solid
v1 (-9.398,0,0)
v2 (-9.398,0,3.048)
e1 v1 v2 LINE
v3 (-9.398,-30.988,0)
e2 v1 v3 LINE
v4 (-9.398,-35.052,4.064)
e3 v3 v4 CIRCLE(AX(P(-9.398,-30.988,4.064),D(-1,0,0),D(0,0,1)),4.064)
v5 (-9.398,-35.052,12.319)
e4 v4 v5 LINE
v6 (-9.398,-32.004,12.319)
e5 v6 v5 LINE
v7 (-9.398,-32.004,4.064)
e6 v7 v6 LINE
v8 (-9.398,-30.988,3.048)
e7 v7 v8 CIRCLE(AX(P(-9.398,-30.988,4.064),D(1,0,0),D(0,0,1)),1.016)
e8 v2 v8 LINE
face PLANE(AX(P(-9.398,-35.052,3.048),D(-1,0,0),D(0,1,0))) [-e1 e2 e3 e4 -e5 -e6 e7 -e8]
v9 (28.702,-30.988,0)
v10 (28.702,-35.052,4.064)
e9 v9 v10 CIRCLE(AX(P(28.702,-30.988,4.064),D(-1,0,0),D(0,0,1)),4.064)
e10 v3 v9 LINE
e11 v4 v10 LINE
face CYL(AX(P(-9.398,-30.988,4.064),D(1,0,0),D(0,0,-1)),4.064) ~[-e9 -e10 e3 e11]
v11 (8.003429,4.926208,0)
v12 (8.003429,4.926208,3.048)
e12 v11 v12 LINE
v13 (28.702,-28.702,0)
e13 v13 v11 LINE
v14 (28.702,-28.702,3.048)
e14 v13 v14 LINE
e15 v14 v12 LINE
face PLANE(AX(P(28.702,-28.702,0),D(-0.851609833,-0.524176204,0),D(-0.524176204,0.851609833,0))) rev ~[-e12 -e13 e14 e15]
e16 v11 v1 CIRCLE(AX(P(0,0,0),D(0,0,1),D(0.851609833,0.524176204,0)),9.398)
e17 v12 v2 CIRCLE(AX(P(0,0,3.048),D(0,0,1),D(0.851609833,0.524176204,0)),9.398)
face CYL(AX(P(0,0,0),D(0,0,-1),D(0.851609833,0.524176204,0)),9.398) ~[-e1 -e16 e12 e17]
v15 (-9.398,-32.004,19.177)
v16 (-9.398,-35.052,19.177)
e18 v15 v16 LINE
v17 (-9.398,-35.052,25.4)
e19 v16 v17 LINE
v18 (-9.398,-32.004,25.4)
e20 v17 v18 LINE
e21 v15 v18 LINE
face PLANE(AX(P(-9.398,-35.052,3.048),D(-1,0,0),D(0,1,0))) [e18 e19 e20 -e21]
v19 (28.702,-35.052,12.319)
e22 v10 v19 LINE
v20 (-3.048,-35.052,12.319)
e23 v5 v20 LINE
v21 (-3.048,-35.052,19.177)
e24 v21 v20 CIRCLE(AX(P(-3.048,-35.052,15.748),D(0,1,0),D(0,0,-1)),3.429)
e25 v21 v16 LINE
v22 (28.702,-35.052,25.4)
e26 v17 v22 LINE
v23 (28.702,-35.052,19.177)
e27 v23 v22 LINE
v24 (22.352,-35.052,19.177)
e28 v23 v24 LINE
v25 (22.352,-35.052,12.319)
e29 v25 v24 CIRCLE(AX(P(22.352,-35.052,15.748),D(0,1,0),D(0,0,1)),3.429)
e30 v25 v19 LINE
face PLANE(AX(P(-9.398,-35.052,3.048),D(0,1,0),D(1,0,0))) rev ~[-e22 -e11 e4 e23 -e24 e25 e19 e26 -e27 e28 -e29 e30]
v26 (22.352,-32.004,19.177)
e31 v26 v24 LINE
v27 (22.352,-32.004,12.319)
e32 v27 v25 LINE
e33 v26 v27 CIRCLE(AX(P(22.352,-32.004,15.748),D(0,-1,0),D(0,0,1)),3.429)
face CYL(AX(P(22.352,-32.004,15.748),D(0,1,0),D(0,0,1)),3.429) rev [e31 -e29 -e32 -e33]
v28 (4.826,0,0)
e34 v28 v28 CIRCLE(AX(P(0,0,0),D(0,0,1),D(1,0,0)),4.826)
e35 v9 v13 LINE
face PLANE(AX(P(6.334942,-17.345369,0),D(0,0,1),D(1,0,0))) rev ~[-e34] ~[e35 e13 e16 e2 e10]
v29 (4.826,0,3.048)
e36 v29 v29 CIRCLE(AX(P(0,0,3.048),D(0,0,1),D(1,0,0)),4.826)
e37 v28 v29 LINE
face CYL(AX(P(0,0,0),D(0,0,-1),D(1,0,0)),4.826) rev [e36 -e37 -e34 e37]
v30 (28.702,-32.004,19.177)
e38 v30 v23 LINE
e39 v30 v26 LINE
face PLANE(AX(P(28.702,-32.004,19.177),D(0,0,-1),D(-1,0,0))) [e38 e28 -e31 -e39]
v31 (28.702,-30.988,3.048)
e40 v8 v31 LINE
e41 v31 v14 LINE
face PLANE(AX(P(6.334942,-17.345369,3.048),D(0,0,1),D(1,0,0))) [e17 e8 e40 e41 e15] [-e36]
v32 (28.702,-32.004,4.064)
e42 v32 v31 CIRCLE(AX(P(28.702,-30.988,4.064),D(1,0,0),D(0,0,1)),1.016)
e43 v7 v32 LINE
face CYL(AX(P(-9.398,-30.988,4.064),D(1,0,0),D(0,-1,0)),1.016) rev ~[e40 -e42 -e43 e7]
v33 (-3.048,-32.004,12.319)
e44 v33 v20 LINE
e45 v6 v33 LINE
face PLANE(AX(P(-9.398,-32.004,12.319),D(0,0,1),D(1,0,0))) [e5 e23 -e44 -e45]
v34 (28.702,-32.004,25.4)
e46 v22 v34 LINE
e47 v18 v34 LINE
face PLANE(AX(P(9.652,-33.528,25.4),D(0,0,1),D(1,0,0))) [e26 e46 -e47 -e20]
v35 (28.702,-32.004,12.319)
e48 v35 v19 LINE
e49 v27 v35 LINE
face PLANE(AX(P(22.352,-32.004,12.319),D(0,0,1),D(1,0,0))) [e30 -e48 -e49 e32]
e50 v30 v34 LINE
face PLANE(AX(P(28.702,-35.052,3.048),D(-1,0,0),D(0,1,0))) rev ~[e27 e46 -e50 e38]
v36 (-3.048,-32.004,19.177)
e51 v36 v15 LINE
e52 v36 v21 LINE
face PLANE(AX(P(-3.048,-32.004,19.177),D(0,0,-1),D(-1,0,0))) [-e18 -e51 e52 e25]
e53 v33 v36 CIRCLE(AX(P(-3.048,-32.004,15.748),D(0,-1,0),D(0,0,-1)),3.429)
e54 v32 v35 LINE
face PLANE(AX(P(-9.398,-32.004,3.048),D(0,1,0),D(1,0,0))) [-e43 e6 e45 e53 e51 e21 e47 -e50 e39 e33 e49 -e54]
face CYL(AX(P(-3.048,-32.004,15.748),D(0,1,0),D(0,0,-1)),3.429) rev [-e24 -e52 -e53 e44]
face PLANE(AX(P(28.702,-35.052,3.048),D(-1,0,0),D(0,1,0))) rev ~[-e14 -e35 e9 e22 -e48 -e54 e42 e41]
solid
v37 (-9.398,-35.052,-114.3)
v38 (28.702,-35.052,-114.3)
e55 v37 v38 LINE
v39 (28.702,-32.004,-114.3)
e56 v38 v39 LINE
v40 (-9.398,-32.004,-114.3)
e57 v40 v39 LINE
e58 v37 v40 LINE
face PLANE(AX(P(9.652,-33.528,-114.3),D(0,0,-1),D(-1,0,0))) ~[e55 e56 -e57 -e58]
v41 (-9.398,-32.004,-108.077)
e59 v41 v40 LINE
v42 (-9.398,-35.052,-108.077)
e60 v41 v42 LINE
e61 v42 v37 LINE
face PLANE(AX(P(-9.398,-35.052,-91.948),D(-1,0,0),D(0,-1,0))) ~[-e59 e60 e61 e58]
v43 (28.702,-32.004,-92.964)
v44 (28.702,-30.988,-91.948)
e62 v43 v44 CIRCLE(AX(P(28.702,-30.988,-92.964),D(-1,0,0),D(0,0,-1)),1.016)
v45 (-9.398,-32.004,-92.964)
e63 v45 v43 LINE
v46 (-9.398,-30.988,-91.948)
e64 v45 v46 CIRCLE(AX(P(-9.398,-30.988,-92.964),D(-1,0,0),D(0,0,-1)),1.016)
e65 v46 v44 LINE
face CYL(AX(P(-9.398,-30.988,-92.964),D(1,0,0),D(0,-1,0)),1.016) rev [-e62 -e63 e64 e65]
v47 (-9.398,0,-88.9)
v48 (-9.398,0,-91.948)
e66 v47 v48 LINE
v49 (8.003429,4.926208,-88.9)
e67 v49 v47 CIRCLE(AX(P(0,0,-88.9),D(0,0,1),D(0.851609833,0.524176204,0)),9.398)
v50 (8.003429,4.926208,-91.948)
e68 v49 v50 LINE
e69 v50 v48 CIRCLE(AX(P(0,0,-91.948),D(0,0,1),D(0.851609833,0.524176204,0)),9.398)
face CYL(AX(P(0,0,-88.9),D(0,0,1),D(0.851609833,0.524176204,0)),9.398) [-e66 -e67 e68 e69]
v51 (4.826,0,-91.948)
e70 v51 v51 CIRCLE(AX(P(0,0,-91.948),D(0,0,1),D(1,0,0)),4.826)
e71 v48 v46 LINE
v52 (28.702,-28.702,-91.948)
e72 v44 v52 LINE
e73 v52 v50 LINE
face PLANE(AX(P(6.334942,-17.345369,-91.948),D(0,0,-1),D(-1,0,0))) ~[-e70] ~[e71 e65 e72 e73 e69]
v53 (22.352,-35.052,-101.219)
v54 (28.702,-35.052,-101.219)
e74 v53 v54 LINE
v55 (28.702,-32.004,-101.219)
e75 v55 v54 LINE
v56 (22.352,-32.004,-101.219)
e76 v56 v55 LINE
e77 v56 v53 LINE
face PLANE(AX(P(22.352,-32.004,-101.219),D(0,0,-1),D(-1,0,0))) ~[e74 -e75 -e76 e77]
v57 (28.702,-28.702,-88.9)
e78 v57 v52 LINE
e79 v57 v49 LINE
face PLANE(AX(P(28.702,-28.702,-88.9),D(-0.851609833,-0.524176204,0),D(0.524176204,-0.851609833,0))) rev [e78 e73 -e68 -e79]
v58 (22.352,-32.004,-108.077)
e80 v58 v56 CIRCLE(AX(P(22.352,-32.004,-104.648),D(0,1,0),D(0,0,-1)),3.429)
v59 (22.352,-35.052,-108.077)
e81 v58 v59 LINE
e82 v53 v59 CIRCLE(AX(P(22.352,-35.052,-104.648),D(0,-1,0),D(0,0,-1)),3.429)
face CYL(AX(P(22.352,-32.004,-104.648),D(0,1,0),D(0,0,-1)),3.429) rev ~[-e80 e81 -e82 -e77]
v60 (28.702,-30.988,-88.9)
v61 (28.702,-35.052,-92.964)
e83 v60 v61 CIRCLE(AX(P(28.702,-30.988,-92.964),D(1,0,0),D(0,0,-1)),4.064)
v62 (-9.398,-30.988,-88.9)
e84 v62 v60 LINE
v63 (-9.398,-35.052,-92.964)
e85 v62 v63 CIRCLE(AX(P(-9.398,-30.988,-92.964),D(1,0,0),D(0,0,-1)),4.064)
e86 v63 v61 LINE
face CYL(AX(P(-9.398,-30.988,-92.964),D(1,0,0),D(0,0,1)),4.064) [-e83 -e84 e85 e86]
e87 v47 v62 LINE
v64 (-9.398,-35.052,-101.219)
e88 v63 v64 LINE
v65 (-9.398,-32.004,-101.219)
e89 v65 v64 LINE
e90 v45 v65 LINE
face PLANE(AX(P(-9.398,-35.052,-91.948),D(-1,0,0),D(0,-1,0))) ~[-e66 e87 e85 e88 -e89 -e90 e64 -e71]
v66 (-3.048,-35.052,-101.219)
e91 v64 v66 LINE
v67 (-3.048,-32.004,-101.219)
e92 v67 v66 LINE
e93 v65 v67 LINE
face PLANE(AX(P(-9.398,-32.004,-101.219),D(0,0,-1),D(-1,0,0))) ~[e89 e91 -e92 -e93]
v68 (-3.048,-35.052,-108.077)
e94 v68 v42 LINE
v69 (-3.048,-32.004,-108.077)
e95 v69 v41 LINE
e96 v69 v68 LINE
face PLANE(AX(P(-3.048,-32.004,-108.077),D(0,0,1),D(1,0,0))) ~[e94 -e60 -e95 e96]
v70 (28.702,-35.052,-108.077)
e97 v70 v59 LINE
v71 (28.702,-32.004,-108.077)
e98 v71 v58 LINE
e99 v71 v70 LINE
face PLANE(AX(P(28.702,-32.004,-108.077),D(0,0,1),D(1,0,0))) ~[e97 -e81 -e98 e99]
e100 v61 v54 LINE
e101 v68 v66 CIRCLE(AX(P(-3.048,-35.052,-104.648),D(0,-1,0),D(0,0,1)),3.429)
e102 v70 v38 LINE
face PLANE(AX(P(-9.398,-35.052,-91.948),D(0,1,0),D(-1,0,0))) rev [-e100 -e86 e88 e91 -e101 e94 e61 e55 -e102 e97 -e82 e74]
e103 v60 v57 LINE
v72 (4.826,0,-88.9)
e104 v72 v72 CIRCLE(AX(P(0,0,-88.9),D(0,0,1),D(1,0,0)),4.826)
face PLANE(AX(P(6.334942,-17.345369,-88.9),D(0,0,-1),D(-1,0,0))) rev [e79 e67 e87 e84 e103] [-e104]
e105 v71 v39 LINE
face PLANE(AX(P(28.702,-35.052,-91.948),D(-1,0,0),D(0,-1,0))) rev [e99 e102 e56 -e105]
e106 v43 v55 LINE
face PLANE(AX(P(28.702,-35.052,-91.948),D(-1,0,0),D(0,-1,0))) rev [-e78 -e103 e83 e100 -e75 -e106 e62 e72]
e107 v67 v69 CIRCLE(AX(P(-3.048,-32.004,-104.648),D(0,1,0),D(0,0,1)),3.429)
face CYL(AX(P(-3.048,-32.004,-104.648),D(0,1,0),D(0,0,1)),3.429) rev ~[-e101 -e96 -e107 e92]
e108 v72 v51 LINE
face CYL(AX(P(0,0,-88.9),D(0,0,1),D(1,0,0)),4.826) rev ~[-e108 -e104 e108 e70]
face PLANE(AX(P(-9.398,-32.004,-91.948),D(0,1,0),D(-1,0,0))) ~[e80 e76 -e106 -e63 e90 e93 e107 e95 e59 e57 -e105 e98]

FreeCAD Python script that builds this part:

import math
import FreeCAD as App
import Part
import Sketcher
Q = App.Units.Quantity


def edges_at(feature, points):
    """Names of the edges that pass closest to the given points."""
    edges = feature.Shape.Edges
    near = lambda p: min(range(len(edges)), key=lambda i: edges[i].distToShape(Part.Vertex(*p))[0])
    return sorted({f"Edge{near(p) + 1}" for p in points})


def add_polygon(sketch, points):
    """Adds a closed chain of lines whose ends are joined by coincident constraints."""
    first, n = sketch.GeometryCount, len(points)
    for a, b in zip(points, points[1:] + points[:1]):
        sketch.addGeometry(Part.LineSegment(App.Vector(*a, 0), App.Vector(*b, 0)), False)
    for i in range(n):
        sketch.addConstraint(Sketcher.Constraint("Coincident", first + i, 2, first + (i + 1) % n, 1))

doc = App.newDocument("Part")
body = doc.addObject("PartDesign::Body", "Body")

# Sketch on XY plane
sketch1 = body.newObject("Sketcher::SketchObject", "Sketch")
sketch1.AttachmentSupport = (doc.getObject("XY_Plane"), [""])
sketch1.MapMode = "FlatFace"
sketch1.addGeometry(Part.LineSegment(App.Vector(-9.4, 0, 0), App.Vector(-9.4, -35.1, 0)), False)
sketch1.addGeometry(Part.LineSegment(App.Vector(-9.4, -35.1, 0), App.Vector(28.7, -35.1, 0)), False)
sketch1.addGeometry(Part.LineSegment(App.Vector(28.7, -35.1, 0), App.Vector(28.7, -28.7, 0)), False)
sketch1.addGeometry(Part.LineSegment(App.Vector(28.7, -28.7, 0), App.Vector(8, 4.9, 0)), False)
sketch1.addGeometry(Part.ArcOfCircle(Part.Circle(App.Vector(0, 0, 0), App.Vector(0, 0, 1), 9.4), math.radians(32), math.radians(180)), False)
sketch1.addGeometry(Part.Circle(App.Vector(0, 0, 0), App.Vector(0, 0, 1), 4.8), False)
sketch1.addConstraint(Sketcher.Constraint("Coincident", 0, 2, 1, 1))
sketch1.addConstraint(Sketcher.Constraint("Coincident", 1, 2, 2, 1))
sketch1.addConstraint(Sketcher.Constraint("Coincident", 2, 2, 3, 1))
sketch1.addConstraint(Sketcher.Constraint("Tangent", 3, 2, 4, 1))
sketch1.addConstraint(Sketcher.Constraint("Tangent", 4, 2, 0, 1))
sketch1.addConstraint(Sketcher.Constraint("Vertical", 0))
sketch1.addConstraint(Sketcher.Constraint("Horizontal", 1))
sketch1.addConstraint(Sketcher.Constraint("Vertical", 2))
sketch1.addConstraint(Sketcher.Constraint("Coincident", 4, 3, -1, 1))
sketch1.addConstraint(Sketcher.Constraint("Coincident", 5, 3, -1, 1))
sketch1.addConstraint(Sketcher.Constraint("Diameter", 5, Q("0.38 in")))
sketch1.addConstraint(Sketcher.Constraint("Radius", 4, Q("0.37 in")))
sketch1.addConstraint(Sketcher.Constraint("DistanceX", 1, 1, 1, 2, Q("1.5 in")))
sketch1.addConstraint(Sketcher.Constraint("DistanceY", 0, 2, 0, 1, Q("1.38 in")))
sketch1.addConstraint(Sketcher.Constraint("DistanceY", 2, 1, 2, 2, Q("0.25 in")))
pad1 = body.newObject("PartDesign::Pad", "Pad")
pad1.Profile = sketch1
pad1.Length = Q("0.12 in")

# Sketch on XY plane
sketch2 = body.newObject("Sketcher::SketchObject", "Sketch001")
sketch2.AttachmentSupport = (doc.getObject("XY_Plane"), [""])
sketch2.MapMode = "FlatFace"
sketch2.AttachmentOffset = App.Placement(App.Vector(0, 0, 0.12 * 25.4), App.Rotation())
add_polygon(sketch2, [(-9.4, -32), (-9.4, -35.1), (28.7, -35.1), (28.7, -32)])  # lines 0-3
sketch2.addConstraint(Sketcher.Constraint("Vertical", 0))
sketch2.addConstraint(Sketcher.Constraint("Horizontal", 1))
sketch2.addConstraint(Sketcher.Constraint("Vertical", 2))
sketch2.addConstraint(Sketcher.Constraint("Horizontal", 3))
sketch2.addConstraint(Sketcher.Constraint("DistanceX", 1, 1, 1, 2, Q("1.5 in")))
sketch2.addConstraint(Sketcher.Constraint("DistanceY", 0, 2, 0, 1, Q("0.12 in")))
sketch2.addConstraint(Sketcher.Constraint("DistanceX", 0, 2, -1, 1, Q("0.37 in")))
sketch2.addConstraint(Sketcher.Constraint("DistanceY", 0, 2, -1, 1, Q("1.38 in")))
pad2 = body.newObject("PartDesign::Pad", "Pad001")
pad2.Profile = sketch2
pad2.Length = Q("0.88 in")

# Sketch on XZ plane
sketch3 = body.newObject("Sketcher::SketchObject", "Sketch002")
sketch3.AttachmentSupport = (doc.getObject("XZ_Plane"), [""])
sketch3.MapMode = "FlatFace"
sketch3.AttachmentOffset = App.Placement(App.Vector(0, 0, 1.26 * 25.4), App.Rotation())
sketch3.addGeometry(Part.LineSegment(App.Vector(-9.4, 19.2, 0), App.Vector(-3, 19.2, 0)), False)
sketch3.addGeometry(Part.ArcOfCircle(Part.Circle(App.Vector(-3, 15.7, 0), App.Vector(0, 0, 1), 3.4), math.radians(-90), math.radians(90)), False)
sketch3.addGeometry(Part.LineSegment(App.Vector(-3, 12.3, 0), App.Vector(-9.4, 12.3, 0)), False)
sketch3.addGeometry(Part.LineSegment(App.Vector(-9.4, 12.3, 0), App.Vector(-9.4, 19.2, 0)), False)
sketch3.addGeometry(Part.LineSegment(App.Vector(28.7, 12.3, 0), App.Vector(22.4, 12.3, 0)), False)
sketch3.addGeometry(Part.ArcOfCircle(Part.Circle(App.Vector(22.4, 15.7, 0), App.Vector(0, 0, 1), 3.4), math.radians(90), math.radians(270)), False)
sketch3.addGeometry(Part.LineSegment(App.Vector(22.4, 19.2, 0), App.Vector(28.7, 19.2, 0)), False)
sketch3.addGeometry(Part.LineSegment(App.Vector(28.7, 19.2, 0), App.Vector(28.7, 12.3, 0)), False)
sketch3.addConstraint(Sketcher.Constraint("Tangent", 0, 2, 1, 2))
sketch3.addConstraint(Sketcher.Constraint("Tangent", 1, 1, 2, 1))
sketch3.addConstraint(Sketcher.Constraint("Coincident", 2, 2, 3, 1))
sketch3.addConstraint(Sketcher.Constraint("Coincident", 3, 2, 0, 1))
sketch3.addConstraint(Sketcher.Constraint("Tangent", 4, 2, 5, 2))
sketch3.addConstraint(Sketcher.Constraint("Tangent", 5, 1, 6, 1))
sketch3.addConstraint(Sketcher.Constraint("Coincident", 6, 2, 7, 1))
sketch3.addConstraint(Sketcher.Constraint("Coincident", 7, 2, 4, 1))
sketch3.addConstraint(Sketcher.Constraint("Horizontal", 0))
sketch3.addConstraint(Sketcher.Constraint("Horizontal", 2))
sketch3.addConstraint(Sketcher.Constraint("Vertical", 3))
sketch3.addConstraint(Sketcher.Constraint("Horizontal", 4))
sketch3.addConstraint(Sketcher.Constraint("Horizontal", 6))
sketch3.addConstraint(Sketcher.Constraint("Vertical", 7))
sketch3.addConstraint(Sketcher.Constraint("Equal", 1, 5))
sketch3.addConstraint(Sketcher.Constraint("Horizontal", 1, 3, 5, 3))
sketch3.addConstraint(Sketcher.Constraint("Equal", 2, 4))
sketch3.addConstraint(Sketcher.Constraint("Radius", 1, Q("0.135 in")))
sketch3.addConstraint(Sketcher.Constraint("DistanceX", 1, 3, 5, 3, Q("1 in")))
sketch3.addConstraint(Sketcher.Constraint("DistanceX", 0, 1, 0, 2, Q("0.25 in")))
sketch3.addConstraint(Sketcher.Constraint("DistanceX", 1, 3, -1, 1, Q("0.12 in")))
sketch3.addConstraint(Sketcher.Constraint("DistanceY", -1, 1, 1, 3, Q("0.62 in")))
pocket1 = body.newObject("PartDesign::Pocket", "Pocket")
pocket1.Profile = sketch3
pocket1.Type = "ThroughAll"
pocket1.Reversed = True
doc.recompute()

fillet = body.newObject("PartDesign::Fillet", "Fillet")
fillet.Base = (pocket1, edges_at(pocket1, [(9.652, -32.004, 3.048)]))
fillet.Radius = Q("0.04 in")
doc.recompute()

fillet2 = body.newObject("PartDesign::Fillet", "Fillet001")
fillet2.Base = (fillet, edges_at(fillet, [(9.652, -35.052, 0)]))
fillet2.Radius = Q("0.16 in")
body2 = doc.addObject("PartDesign::Body", "Body001")
doc.recompute()

mirroring = doc.addObject("Part::Mirroring", "Mirroring")
mirroring.Source = body
mirroring.Base = App.Vector(0, 0, -44.45)
mirroring.Normal = App.Vector(0, 0, 1)
body2.BaseFeature = mirroring
doc.recompute()
mirroring.Visibility = False

doc.recompute()
